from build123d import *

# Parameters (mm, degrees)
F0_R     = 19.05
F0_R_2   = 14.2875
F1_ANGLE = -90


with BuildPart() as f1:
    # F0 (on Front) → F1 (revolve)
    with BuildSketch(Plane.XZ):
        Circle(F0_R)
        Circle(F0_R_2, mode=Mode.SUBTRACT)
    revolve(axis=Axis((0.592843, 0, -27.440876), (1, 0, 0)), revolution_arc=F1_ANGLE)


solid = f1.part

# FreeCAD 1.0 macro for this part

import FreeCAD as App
import Part
import Sketcher

V = App.Vector
Q = App.Units.Quantity

doc = App.newDocument("Part")
params = doc.addObject("Spreadsheet::Sheet", "Params")
for row, (alias, value) in enumerate([
    ("sketch1_diameter", "1.5 in"),
    ("sketch1_diameter2", "1.125 in"),
    ("revolution_angle", "90 deg"),
], start=1):
    params.set(f"A{row}", alias)
    params.set(f"B{row}", "=" + value)
    params.setAlias(f"B{row}", alias)

body = doc.addObject("PartDesign::Body", "Body")

sketch1 = doc.addObject("Sketcher::SketchObject", "Sketch")
body.addObject(sketch1)
sketch1.AttachmentSupport = (doc.XZ_Plane, [""])
sketch1.MapMode = "FlatFace"
sketch1.addGeometry([
    Part.Circle(V(0, 0, 0), V(0, 0, 1), 19),
    Part.Circle(V(0, 0, 0), V(0, 0, 1), 14),
], False)
sketch1.addGeometry(Part.LineSegment(V(0, -27, 0), V(10, -27, 0)), True)
sketch1.addConstraint([
    Sketcher.Constraint("Horizontal", 2),
    Sketcher.Constraint("Coincident", 0, 3, -1, 1),
    Sketcher.Constraint("Coincident", 1, 3, -1, 1),
    Sketcher.Constraint("PointOnObject", 2, 1, -2),
    Sketcher.Constraint("Diameter", 0, Q("1.5 in")),
    Sketcher.Constraint("Diameter", 1, Q("1.125 in")),
    Sketcher.Constraint("DistanceX", 2, 1, 2, 2, Q("10 mm")),
    Sketcher.Constraint("DistanceY", 2, 1, -1, 1, Q("27.440876 mm")),
])
sketch1.setExpression("Constraints[4]", "Params.sketch1_diameter")
sketch1.setExpression("Constraints[5]", "Params.sketch1_diameter2")
revolution = doc.addObject("PartDesign::Revolution", "Revolution")
body.addObject(revolution)
revolution.Profile = sketch1
revolution.ReferenceAxis = (sketch1, ["Axis0"])
revolution.setExpression("Angle", "Params.revolution_angle")
revolution.Reversed = True

doc.recompute()
